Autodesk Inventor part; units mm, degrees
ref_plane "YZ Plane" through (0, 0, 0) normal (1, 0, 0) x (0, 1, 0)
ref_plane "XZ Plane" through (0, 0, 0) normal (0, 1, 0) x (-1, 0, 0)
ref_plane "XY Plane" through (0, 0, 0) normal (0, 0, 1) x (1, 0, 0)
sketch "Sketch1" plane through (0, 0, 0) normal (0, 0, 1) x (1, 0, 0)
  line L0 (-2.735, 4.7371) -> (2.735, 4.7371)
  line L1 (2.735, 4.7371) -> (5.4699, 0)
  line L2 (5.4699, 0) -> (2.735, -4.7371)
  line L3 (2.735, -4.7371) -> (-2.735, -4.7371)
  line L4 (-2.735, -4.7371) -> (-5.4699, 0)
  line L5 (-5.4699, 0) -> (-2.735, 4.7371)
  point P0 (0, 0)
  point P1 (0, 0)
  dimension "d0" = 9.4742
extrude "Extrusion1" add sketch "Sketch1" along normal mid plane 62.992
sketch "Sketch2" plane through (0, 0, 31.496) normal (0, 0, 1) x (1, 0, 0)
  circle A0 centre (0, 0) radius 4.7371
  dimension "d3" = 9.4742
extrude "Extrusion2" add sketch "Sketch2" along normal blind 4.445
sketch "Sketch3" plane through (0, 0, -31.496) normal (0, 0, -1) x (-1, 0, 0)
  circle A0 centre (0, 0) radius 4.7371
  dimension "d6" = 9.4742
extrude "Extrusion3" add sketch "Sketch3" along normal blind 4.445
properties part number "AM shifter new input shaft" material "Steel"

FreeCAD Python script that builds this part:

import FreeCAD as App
import Part
import Sketcher
Q = App.Units.Quantity

doc = App.newDocument("Part")
params = doc.addObject("Spreadsheet::Sheet", "Params")
for row, (alias, value) in enumerate([
    ("pad1_length", "2.48 in"),
    ("sketch2_diameter", "0.373 in"),
    ("pad2_length", "0.175 in"),
    ("sketch3_diameter", "0.373 in"),
    ("pad3_length", "0.175 in"),
], start=1):
    params.set(f"A{row}", alias)
    params.set(f"B{row}", "=" + value)
    params.setAlias(f"B{row}", alias)

body = doc.addObject("PartDesign::Body", "Body")

sketch1 = body.newObject("Sketcher::SketchObject", "Sketch")
sketch1.AttachmentSupport = (doc.getObject("XY_Plane"), [""])
sketch1.MapMode = "FlatFace"
sketch1.addGeometry([
    Part.LineSegment(App.Vector(3, 5, 0), App.Vector(-3, 5, 0)),
    Part.LineSegment(App.Vector(-3, 5, 0), App.Vector(-5, 0, 0)),
    Part.LineSegment(App.Vector(-5, 0, 0), App.Vector(-3, -5, 0)),
    Part.LineSegment(App.Vector(-3, -5, 0), App.Vector(3, -5, 0)),
    Part.LineSegment(App.Vector(3, -5, 0), App.Vector(5, 0, 0)),
    Part.LineSegment(App.Vector(5, 0, 0), App.Vector(3, 5, 0)),
], False)
sketch1.addConstraint([
    Sketcher.Constraint("Coincident", 0, 2, 1, 1),
    Sketcher.Constraint("Coincident", 1, 2, 2, 1),
    Sketcher.Constraint("Coincident", 2, 2, 3, 1),
    Sketcher.Constraint("Coincident", 3, 2, 4, 1),
    Sketcher.Constraint("Coincident", 4, 2, 5, 1),
    Sketcher.Constraint("Coincident", 5, 2, 0, 1),
    Sketcher.Constraint("Horizontal", 0),
    Sketcher.Constraint("Horizontal", 3),
    Sketcher.Constraint("Symmetric", 0, 2, 3, 2, -1, 1),
    Sketcher.Constraint("Symmetric", 1, 2, 4, 2, -1, 1),
    Sketcher.Constraint("PointOnObject", 1, 2, -1),
    Sketcher.Constraint("Parallel", 2, 5),
    Sketcher.Constraint("Vertical", 0, 2, 2, 2),
    Sketcher.Constraint("Angle", 1, Q("-119.9994 deg")),
    Sketcher.Constraint("DistanceY", 2, 2, 0, 2, Q("0.373 in")),
    Sketcher.Constraint("DistanceX", 0, 2, 0, 1, Q("5.47 mm")),
])
pad1 = body.newObject("PartDesign::Pad", "Pad")
pad1.Profile = sketch1
pad1.setExpression("Length", "Params.pad1_length")
pad1.Midplane = True

sketch2 = body.newObject("Sketcher::SketchObject", "Sketch001")
sketch2.AttachmentSupport = (doc.getObject("XY_Plane"), [""])
sketch2.MapMode = "FlatFace"
sketch2.AttachmentOffset = App.Placement(App.Vector(0, 0, 1.24 * 25.4), App.Rotation())
sketch2.addGeometry(Part.Circle(App.Vector(0, 0, 0), App.Vector(0, 0, 1), 4.7), False)
sketch2.addConstraint([
    Sketcher.Constraint("Coincident", 0, 3, -1, 1),
    Sketcher.Constraint("Diameter", 0, Q("0.373 in")),
])
sketch2.setExpression("Constraints[1]", "Params.sketch2_diameter")
pad2 = body.newObject("PartDesign::Pad", "Pad001")
pad2.Profile = sketch2
pad2.setExpression("Length", "Params.pad2_length")

sketch3 = body.newObject("Sketcher::SketchObject", "Sketch002")
sketch3.AttachmentSupport = (doc.getObject("XY_Plane"), [""])
sketch3.MapMode = "FlatFace"
sketch3.AttachmentOffset = App.Placement(App.Vector(0, 0, -1.24 * 25.4), App.Rotation())
sketch3.addGeometry(Part.Circle(App.Vector(0, 0, 0), App.Vector(0, 0, 1), 4.7), False)
sketch3.addConstraint([
    Sketcher.Constraint("Coincident", 0, 3, -1, 1),
    Sketcher.Constraint("Diameter", 0, Q("0.373 in")),
])
sketch3.setExpression("Constraints[1]", "Params.sketch3_diameter")
pad3 = body.newObject("PartDesign::Pad", "Pad002")
pad3.Profile = sketch3
pad3.setExpression("Length", "Params.pad3_length")
pad3.Reversed = True

doc.recompute()
